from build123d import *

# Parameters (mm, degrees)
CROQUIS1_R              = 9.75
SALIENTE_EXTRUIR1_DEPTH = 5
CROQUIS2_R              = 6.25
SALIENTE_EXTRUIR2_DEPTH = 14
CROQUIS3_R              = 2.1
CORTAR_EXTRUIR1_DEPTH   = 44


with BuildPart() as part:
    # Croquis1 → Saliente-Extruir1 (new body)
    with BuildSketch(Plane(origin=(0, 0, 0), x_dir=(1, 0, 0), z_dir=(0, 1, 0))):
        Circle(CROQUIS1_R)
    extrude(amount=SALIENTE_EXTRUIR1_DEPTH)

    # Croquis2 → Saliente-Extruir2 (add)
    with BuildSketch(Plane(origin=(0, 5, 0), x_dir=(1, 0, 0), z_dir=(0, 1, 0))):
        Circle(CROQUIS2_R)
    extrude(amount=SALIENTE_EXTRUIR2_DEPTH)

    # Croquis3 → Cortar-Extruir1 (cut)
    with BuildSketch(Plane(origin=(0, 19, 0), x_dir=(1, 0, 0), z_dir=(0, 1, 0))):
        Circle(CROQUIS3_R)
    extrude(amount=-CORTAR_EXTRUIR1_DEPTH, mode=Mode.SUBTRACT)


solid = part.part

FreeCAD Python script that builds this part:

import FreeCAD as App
import Part
import Sketcher

V = App.Vector

doc = App.newDocument("Part")
body = doc.addObject("PartDesign::Body", "Body")

sketch1 = body.newObject("Sketcher::SketchObject", "Sketch")
sketch1.AttachmentSupport = (doc.getObject("XZ_Plane"), [""])
sketch1.MapMode = "FlatFace"
sketch1.addGeometry(Part.Circle(V(0, 0, 0), V(0, 0, 1), 9.75), False)
sketch1.addConstraint([
    Sketcher.Constraint("Coincident", 0, 3, -1, 1),
    Sketcher.Constraint("Diameter", 0, 19.5),
])
pad1 = body.newObject("PartDesign::Pad", "Pad")
pad1.Profile = sketch1
pad1.Length = 5
pad1.Reversed = True

sketch2 = body.newObject("Sketcher::SketchObject", "Sketch001")
sketch2.AttachmentSupport = (doc.getObject("XZ_Plane"), [""])
sketch2.MapMode = "FlatFace"
sketch2.AttachmentOffset = App.Placement(V(0, 0, -5), App.Rotation())
sketch2.addGeometry(Part.Circle(V(0, 0, 0), V(0, 0, 1), 6.25), False)
sketch2.addConstraint([
    Sketcher.Constraint("Coincident", 0, 3, -1, 1),
    Sketcher.Constraint("Diameter", 0, 12.5),
])
pad2 = body.newObject("PartDesign::Pad", "Pad001")
pad2.Profile = sketch2
pad2.Length = 14
pad2.Reversed = True

sketch3 = body.newObject("Sketcher::SketchObject", "Sketch002")
sketch3.AttachmentSupport = (doc.getObject("XZ_Plane"), [""])
sketch3.MapMode = "FlatFace"
sketch3.AttachmentOffset = App.Placement(V(0, 0, -19), App.Rotation())
sketch3.addGeometry(Part.Circle(V(0, 0, 0), V(0, 0, 1), 2.1), False)
sketch3.addConstraint([
    Sketcher.Constraint("Coincident", 0, 3, -1, 1),
    Sketcher.Constraint("Diameter", 0, 4.2),
])
pocket1 = body.newObject("PartDesign::Pocket", "Pocket")
pocket1.Profile = sketch3
pocket1.Length = 44
pocket1.Reversed = True

doc.recompute()
